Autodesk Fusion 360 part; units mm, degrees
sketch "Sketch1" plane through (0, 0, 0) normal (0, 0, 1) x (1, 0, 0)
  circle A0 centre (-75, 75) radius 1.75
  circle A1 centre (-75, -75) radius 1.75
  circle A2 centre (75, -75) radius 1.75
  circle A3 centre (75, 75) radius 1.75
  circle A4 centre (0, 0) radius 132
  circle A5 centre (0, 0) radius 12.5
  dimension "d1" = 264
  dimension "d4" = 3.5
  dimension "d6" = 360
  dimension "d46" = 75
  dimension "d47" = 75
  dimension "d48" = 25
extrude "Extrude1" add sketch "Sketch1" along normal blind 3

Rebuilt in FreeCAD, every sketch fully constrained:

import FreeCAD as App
import Part
import Sketcher

V = App.Vector
Q = App.Units.Quantity

doc = App.newDocument("Part")
body = doc.addObject("PartDesign::Body", "Body")

sketch1 = body.newObject("Sketcher::SketchObject", "Sketch")
sketch1.AttachmentSupport = (doc.getObject("XY_Plane"), [""])
sketch1.MapMode = "FlatFace"
sketch1.addGeometry(Part.Circle(V(0, 0, 0), V(0, 0, 1), 132), False)
sketch1.addGeometry(Part.Circle(V(-75, -75, 0), V(0, 0, 1), 1.8), False)
sketch1.addGeometry(Part.Circle(V(75, -75, 0), V(0, 0, 1), 1.8), False)
sketch1.addGeometry(Part.Circle(V(-75, 75, 0), V(0, 0, 1), 1.8), False)
sketch1.addGeometry(Part.Circle(V(0, 0, 0), V(0, 0, 1), 12.5), False)
sketch1.addGeometry(Part.Circle(V(75, 75, 0), V(0, 0, 1), 1.8), False)
sketch1.addConstraint(Sketcher.Constraint("Coincident", 0, 3, -1, 1))
sketch1.addConstraint(Sketcher.Constraint("Coincident", 4, 3, -1, 1))
sketch1.addConstraint(Sketcher.Constraint("Equal", 1, 2))
sketch1.addConstraint(Sketcher.Constraint("Equal", 2, 3))
sketch1.addConstraint(Sketcher.Constraint("Equal", 3, 5))
sketch1.addConstraint(Sketcher.Constraint("Symmetric", 2, 3, 3, 3, -1, 1))
sketch1.addConstraint(Sketcher.Constraint("Symmetric", 1, 3, 5, 3, -1, 1))
sketch1.addConstraint(Sketcher.Constraint("Symmetric", 1, 3, 2, 3, -2))
sketch1.addConstraint(Sketcher.Constraint("Diameter", 0, Q("264 mm")))
sketch1.addConstraint(Sketcher.Constraint("Diameter", 4, Q("25 mm")))
sketch1.addConstraint(Sketcher.Constraint("Diameter", 1, Q("3.5 mm")))
sketch1.addConstraint(Sketcher.Constraint("DistanceX", 1, 3, -1, 1, Q("75 mm")))
sketch1.addConstraint(Sketcher.Constraint("DistanceY", 1, 3, -1, 1, Q("75 mm")))
pad1 = body.newObject("PartDesign::Pad", "Pad")
pad1.Profile = sketch1
pad1.Length = 3

doc.recompute()
